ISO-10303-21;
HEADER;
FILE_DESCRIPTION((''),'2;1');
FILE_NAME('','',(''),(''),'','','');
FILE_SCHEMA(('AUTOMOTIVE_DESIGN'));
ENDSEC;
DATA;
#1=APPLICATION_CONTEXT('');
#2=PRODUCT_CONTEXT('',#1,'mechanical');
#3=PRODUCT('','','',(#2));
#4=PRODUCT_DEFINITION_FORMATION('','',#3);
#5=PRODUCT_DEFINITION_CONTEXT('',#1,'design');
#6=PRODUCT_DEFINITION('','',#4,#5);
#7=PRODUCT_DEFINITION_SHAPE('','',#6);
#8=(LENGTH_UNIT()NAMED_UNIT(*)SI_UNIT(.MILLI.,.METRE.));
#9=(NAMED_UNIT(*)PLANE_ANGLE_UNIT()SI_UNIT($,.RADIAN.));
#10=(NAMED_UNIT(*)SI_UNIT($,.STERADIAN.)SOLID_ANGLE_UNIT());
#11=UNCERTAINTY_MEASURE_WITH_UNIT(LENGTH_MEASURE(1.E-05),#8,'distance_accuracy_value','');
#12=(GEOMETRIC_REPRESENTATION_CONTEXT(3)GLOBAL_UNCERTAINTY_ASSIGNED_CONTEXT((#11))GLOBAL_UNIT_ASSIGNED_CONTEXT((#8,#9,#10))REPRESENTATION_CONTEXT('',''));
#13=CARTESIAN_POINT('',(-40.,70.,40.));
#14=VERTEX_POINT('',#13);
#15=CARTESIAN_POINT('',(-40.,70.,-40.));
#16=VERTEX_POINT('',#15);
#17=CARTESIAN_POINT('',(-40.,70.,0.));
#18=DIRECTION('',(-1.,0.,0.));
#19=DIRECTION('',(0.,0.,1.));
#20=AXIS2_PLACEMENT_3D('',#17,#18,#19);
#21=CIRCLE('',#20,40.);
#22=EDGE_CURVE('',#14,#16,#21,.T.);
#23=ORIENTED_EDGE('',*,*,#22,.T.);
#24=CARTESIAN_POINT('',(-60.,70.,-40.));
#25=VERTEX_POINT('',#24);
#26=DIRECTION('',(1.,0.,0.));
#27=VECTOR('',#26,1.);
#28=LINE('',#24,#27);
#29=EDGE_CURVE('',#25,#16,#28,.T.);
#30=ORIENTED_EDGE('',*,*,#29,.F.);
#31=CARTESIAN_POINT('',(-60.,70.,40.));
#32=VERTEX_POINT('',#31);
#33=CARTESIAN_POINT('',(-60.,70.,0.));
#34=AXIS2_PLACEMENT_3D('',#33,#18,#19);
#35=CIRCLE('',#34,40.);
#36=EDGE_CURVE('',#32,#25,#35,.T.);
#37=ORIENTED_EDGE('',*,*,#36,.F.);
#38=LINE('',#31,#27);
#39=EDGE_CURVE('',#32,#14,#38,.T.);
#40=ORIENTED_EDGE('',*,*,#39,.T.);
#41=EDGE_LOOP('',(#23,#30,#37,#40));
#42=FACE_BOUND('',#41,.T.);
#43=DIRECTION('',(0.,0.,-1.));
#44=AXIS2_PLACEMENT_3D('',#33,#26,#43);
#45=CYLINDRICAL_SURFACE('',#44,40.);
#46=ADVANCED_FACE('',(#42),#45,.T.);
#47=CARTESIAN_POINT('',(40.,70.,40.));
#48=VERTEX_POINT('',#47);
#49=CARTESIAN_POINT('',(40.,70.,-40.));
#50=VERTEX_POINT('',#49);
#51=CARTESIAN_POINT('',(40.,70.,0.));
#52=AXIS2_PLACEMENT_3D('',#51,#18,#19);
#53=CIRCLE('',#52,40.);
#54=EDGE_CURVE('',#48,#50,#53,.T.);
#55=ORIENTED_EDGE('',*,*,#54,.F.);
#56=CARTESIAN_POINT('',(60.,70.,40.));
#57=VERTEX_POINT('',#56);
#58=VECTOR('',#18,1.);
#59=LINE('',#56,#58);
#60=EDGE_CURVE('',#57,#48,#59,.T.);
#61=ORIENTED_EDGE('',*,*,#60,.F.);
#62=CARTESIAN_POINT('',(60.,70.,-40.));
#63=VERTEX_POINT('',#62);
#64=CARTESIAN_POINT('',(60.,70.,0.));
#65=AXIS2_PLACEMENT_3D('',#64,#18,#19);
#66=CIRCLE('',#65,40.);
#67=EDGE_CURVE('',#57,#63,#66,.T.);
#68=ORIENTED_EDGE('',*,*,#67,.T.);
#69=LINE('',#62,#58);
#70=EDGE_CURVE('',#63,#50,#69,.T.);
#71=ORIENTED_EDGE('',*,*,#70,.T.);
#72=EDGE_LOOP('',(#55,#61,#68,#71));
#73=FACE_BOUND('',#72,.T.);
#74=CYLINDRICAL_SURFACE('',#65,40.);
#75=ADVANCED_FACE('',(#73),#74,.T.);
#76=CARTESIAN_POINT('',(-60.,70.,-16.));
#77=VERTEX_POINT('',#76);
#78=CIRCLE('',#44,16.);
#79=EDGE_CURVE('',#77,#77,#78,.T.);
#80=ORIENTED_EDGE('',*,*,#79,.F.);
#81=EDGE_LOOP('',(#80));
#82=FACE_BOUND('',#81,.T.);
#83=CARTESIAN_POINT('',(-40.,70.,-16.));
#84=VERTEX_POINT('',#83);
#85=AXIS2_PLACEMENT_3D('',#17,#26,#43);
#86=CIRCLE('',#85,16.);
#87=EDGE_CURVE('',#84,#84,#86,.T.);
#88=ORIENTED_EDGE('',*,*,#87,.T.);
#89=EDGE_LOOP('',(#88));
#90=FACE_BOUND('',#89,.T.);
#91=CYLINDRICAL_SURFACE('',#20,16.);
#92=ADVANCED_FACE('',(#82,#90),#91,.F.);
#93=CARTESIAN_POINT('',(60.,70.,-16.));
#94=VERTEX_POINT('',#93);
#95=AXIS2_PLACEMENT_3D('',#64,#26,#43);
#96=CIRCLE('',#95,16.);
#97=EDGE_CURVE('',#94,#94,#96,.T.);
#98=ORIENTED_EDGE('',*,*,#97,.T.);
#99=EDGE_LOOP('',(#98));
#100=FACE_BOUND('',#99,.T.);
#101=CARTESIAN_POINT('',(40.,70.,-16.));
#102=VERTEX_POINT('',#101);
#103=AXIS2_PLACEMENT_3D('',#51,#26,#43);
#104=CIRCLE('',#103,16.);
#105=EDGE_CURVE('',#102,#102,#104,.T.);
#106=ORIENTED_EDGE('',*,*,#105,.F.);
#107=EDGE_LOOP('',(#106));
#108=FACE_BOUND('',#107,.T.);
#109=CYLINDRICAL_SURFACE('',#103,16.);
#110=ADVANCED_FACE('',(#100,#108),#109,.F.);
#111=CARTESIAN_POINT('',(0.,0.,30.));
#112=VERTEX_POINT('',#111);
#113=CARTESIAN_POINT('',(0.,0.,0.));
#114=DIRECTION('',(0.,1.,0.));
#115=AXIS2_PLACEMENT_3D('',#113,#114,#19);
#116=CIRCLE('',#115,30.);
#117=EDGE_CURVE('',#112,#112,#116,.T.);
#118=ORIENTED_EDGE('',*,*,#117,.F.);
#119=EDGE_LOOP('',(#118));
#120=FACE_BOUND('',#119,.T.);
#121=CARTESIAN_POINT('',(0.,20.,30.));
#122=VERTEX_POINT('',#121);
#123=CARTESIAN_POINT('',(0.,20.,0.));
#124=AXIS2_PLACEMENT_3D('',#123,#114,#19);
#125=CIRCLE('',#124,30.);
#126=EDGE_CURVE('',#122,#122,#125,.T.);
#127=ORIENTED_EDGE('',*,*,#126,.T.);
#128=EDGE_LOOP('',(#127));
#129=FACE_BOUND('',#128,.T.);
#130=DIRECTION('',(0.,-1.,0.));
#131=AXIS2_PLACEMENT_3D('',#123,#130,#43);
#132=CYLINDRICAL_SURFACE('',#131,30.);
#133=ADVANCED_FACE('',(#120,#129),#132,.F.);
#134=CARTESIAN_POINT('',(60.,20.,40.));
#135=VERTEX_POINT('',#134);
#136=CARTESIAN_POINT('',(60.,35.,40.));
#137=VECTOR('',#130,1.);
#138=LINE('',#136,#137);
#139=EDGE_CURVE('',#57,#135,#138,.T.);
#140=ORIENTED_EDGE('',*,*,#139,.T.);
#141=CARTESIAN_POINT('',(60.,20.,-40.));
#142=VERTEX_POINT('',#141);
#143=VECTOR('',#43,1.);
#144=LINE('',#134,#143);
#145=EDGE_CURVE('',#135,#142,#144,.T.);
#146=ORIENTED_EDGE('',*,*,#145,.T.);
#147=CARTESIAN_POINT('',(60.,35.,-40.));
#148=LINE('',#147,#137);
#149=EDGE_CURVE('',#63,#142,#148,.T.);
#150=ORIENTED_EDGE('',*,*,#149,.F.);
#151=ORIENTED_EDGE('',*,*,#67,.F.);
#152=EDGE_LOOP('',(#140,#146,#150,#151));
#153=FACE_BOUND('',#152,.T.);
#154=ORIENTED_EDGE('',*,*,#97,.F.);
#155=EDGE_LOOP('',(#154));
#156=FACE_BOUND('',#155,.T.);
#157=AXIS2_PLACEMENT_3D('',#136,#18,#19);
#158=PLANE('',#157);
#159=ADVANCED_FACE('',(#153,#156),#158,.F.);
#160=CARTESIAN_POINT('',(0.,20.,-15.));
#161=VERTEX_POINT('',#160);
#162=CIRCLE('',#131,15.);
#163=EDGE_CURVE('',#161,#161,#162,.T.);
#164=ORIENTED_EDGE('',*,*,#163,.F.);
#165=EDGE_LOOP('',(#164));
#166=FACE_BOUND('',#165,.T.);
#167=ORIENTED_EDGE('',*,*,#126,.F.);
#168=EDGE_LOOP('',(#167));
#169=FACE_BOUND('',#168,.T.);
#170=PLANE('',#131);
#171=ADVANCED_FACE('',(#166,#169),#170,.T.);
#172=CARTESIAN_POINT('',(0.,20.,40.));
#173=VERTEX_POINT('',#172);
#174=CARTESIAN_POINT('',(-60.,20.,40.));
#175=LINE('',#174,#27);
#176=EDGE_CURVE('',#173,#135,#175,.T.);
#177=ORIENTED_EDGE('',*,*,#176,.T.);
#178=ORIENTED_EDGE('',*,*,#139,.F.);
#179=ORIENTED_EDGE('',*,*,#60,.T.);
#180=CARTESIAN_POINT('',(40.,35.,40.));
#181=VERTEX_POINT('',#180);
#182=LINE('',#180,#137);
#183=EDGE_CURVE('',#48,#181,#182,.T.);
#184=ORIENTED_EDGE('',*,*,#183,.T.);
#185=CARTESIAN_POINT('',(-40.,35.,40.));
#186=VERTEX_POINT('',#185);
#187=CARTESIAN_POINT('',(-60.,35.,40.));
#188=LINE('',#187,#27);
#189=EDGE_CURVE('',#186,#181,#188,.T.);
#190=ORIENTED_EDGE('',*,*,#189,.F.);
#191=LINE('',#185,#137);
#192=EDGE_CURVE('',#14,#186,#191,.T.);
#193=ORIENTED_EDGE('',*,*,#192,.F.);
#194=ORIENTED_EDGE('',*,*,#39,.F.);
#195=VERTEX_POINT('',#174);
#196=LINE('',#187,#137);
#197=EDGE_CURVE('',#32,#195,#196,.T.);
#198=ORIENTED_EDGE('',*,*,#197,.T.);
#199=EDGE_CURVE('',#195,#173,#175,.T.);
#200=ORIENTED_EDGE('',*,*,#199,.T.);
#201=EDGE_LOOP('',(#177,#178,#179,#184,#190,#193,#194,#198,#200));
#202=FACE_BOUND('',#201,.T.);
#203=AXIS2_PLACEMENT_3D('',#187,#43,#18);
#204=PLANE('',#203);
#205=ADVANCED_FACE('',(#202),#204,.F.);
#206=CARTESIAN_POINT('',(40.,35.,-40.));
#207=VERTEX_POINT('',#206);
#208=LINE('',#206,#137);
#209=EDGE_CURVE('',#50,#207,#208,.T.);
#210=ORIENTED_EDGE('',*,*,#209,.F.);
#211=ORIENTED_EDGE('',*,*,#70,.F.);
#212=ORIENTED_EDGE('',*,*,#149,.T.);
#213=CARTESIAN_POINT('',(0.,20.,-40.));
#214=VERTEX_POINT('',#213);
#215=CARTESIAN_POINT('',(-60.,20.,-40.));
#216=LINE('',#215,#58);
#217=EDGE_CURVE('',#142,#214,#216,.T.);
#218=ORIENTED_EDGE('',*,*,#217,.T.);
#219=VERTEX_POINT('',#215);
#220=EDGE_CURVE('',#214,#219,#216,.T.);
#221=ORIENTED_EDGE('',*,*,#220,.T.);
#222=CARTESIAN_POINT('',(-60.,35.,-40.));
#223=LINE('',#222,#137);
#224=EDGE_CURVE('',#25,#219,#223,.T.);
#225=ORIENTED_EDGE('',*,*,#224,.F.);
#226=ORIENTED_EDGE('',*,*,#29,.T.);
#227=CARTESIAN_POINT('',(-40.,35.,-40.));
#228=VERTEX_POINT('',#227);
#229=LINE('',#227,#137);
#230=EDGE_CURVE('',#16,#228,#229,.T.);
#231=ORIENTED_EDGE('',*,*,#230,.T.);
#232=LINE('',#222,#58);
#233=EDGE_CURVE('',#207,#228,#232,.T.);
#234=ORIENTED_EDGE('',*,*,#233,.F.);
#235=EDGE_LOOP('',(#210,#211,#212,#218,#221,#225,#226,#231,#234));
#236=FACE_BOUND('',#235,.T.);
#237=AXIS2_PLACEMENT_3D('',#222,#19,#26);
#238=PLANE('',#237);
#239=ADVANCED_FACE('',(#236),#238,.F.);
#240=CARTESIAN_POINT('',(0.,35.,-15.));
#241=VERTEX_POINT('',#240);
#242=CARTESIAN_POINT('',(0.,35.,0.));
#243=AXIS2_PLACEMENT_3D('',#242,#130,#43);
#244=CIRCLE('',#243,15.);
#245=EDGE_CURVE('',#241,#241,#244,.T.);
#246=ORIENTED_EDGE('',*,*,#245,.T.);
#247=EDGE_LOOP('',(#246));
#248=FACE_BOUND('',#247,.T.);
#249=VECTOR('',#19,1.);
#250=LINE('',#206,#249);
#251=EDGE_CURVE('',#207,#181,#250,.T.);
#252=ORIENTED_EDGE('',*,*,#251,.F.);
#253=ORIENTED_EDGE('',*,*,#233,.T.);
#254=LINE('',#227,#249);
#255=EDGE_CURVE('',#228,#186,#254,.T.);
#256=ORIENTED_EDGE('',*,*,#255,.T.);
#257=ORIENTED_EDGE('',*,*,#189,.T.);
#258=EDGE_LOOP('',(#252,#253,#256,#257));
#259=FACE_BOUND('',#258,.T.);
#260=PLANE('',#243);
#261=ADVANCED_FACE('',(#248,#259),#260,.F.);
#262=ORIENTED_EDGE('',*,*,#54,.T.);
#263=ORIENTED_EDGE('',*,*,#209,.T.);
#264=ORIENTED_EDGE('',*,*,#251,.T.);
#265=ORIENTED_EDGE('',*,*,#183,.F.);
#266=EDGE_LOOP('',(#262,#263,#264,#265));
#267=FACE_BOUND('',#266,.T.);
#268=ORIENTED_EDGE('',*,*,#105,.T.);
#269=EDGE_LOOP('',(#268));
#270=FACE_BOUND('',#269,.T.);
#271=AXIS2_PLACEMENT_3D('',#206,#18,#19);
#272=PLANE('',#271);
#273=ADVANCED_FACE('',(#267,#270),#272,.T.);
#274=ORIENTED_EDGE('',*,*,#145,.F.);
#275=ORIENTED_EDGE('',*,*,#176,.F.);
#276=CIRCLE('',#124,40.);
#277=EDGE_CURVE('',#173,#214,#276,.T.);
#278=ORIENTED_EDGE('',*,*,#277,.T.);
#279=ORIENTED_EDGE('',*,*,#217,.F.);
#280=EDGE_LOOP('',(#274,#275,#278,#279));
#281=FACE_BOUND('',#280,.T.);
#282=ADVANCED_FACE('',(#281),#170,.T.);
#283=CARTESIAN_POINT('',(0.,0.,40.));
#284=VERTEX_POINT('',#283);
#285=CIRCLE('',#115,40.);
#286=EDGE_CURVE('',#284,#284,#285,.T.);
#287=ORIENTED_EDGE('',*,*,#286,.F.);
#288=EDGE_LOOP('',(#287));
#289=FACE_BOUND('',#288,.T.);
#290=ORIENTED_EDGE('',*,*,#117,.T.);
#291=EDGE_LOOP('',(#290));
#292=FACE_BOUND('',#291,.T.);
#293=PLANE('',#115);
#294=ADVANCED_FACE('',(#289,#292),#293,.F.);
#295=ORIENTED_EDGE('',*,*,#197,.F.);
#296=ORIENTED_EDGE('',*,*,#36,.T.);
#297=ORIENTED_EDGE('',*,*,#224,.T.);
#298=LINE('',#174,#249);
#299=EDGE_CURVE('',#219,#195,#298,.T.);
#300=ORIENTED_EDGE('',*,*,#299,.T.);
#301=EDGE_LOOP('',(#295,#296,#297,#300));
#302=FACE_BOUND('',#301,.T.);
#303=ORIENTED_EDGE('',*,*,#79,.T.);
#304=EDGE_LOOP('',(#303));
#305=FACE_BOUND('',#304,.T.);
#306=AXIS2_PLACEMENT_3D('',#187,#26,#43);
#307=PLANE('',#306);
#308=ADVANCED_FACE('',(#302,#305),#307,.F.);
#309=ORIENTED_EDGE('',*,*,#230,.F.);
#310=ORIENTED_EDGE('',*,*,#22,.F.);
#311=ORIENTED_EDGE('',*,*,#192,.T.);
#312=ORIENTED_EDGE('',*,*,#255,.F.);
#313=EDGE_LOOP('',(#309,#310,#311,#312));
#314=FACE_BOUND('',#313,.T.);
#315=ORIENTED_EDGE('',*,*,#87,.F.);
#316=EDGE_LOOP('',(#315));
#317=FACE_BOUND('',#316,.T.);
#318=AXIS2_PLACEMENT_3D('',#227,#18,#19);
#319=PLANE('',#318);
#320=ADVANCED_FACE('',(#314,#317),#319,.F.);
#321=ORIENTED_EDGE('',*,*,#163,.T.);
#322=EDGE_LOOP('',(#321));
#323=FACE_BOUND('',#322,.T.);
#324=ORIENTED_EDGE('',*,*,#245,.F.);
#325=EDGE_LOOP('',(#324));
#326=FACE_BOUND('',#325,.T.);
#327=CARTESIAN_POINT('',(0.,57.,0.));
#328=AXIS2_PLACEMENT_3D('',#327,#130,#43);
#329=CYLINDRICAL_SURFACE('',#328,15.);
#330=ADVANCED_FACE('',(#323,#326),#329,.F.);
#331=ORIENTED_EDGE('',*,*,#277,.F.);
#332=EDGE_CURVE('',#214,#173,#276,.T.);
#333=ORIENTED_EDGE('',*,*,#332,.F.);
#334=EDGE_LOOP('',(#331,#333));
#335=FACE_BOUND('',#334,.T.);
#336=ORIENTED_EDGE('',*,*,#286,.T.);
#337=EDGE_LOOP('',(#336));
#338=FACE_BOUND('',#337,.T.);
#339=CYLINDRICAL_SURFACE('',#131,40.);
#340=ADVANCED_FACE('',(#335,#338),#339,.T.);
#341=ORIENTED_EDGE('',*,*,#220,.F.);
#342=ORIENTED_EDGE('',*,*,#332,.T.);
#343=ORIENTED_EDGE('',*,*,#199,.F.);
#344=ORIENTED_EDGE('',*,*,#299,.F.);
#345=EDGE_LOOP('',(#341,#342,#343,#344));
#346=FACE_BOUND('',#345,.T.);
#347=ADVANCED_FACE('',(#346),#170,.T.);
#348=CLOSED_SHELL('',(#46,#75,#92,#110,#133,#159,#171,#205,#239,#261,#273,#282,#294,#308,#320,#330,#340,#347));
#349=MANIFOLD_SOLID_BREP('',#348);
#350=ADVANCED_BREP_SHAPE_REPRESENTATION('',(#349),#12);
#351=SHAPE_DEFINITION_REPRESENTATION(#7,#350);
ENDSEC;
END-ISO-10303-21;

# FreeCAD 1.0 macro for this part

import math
import FreeCAD as App
import Part
import Sketcher

doc = App.newDocument("Part")
body = doc.addObject("PartDesign::Body", "Body")

# Sketch on XZ plane
sketch1 = body.newObject("Sketcher::SketchObject", "Sketch")
sketch1.AttachmentSupport = (doc.getObject("XZ_Plane"), [""])
sketch1.MapMode = "FlatFace"
sketch1.addGeometry([
    Part.Circle(App.Vector(0, 0, 0), App.Vector(0, 0, 1), 40),
    Part.Circle(App.Vector(0, 0, 0), App.Vector(0, 0, 1), 30),
], False)
sketch1.addConstraint([
    Sketcher.Constraint("Coincident", 0, 3, -1, 1),
    Sketcher.Constraint("Coincident", 1, 3, -1, 1),
    Sketcher.Constraint("Diameter", 0, 80.0),
    Sketcher.Constraint("Diameter", 1, 60.0),
])
pad1 = body.newObject("PartDesign::Pad", "Pad")
pad1.Profile = sketch1
pad1.Length = 20
pad1.Reversed = True

# Sketch on XZ plane
sketch2 = body.newObject("Sketcher::SketchObject", "Sketch001")
sketch2.AttachmentSupport = (doc.getObject("XZ_Plane"), [""])
sketch2.MapMode = "FlatFace"
sketch2.AttachmentOffset = App.Placement(App.Vector(0, 0, -20), App.Rotation())
sketch2.addGeometry([
    Part.LineSegment(App.Vector(-60, -40, 0), App.Vector(-60, 40, 0)),
    Part.LineSegment(App.Vector(-60, 40, 0), App.Vector(60, 40, 0)),
    Part.LineSegment(App.Vector(60, 40, 0), App.Vector(60, -40, 0)),
    Part.LineSegment(App.Vector(60, -40, 0), App.Vector(-60, -40, 0)),
], False)
sketch2.addConstraint([
    Sketcher.Constraint("Coincident", 0, 2, 1, 1),
    Sketcher.Constraint("Coincident", 1, 2, 2, 1),
    Sketcher.Constraint("Coincident", 2, 2, 3, 1),
    Sketcher.Constraint("Coincident", 3, 2, 0, 1),
    Sketcher.Constraint("Vertical", 0),
    Sketcher.Constraint("Horizontal", 1),
    Sketcher.Constraint("Vertical", 2),
    Sketcher.Constraint("Horizontal", 3),
    Sketcher.Constraint("Symmetric", 0, 2, 2, 2, -1, 1),
    Sketcher.Constraint("DistanceX", 1, 1, 1, 2, 120.0),
    Sketcher.Constraint("DistanceY", 0, 1, 0, 2, 80.0),
])
pad2 = body.newObject("PartDesign::Pad", "Pad001")
pad2.Profile = sketch2
pad2.Length = 15
pad2.Reversed = True

# Sketch on XZ plane
sketch3 = body.newObject("Sketcher::SketchObject", "Sketch002")
sketch3.AttachmentSupport = (doc.getObject("XZ_Plane"), [""])
sketch3.MapMode = "FlatFace"
sketch3.AttachmentOffset = App.Placement(App.Vector(0, 0, -20), App.Rotation())
sketch3.addGeometry(Part.Circle(App.Vector(0, 0, 0), App.Vector(0, 0, 1), 15), False)
sketch3.addConstraint([
    Sketcher.Constraint("Coincident", 0, 3, -1, 1),
    Sketcher.Constraint("Diameter", 0, 30.0),
])
pocket1 = body.newObject("PartDesign::Pocket", "Pocket")
pocket1.Profile = sketch3
pocket1.Length = 37

# Sketch on XY plane
sketch4 = body.newObject("Sketcher::SketchObject", "Sketch003")
sketch4.AttachmentSupport = (doc.getObject("XY_Plane"), [""])
sketch4.MapMode = "FlatFace"
sketch4.AttachmentOffset = App.Placement(App.Vector(0, 0, 40), App.Rotation())
sketch4.addGeometry([
    Part.LineSegment(App.Vector(40, 70, 0), App.Vector(40, 35, 0)),
    Part.LineSegment(App.Vector(40, 35, 0), App.Vector(60, 35, 0)),
    Part.LineSegment(App.Vector(60, 35, 0), App.Vector(60, 70, 0)),
    Part.LineSegment(App.Vector(60, 70, 0), App.Vector(40, 70, 0)),
], False)
sketch4.addConstraint([
    Sketcher.Constraint("Coincident", 0, 2, 1, 1),
    Sketcher.Constraint("Coincident", 1, 2, 2, 1),
    Sketcher.Constraint("Coincident", 2, 2, 3, 1),
    Sketcher.Constraint("Coincident", 3, 2, 0, 1),
    Sketcher.Constraint("Vertical", 0),
    Sketcher.Constraint("Horizontal", 1),
    Sketcher.Constraint("Vertical", 2),
    Sketcher.Constraint("Horizontal", 3),
    Sketcher.Constraint("DistanceX", 1, 1, 1, 2, 20.0),
    Sketcher.Constraint("DistanceY", 0, 2, 0, 1, 35.0),
    Sketcher.Constraint("DistanceX", -1, 1, 0, 2, 40.0),
    Sketcher.Constraint("DistanceY", -1, 1, 0, 2, 35.0),
])
pad3 = body.newObject("PartDesign::Pad", "Pad002")
pad3.Profile = sketch4
pad3.Length = 80
pad3.Reversed = True

# Sketch on YZ plane
sketch5 = body.newObject("Sketcher::SketchObject", "Sketch004")
sketch5.AttachmentSupport = (doc.getObject("YZ_Plane"), [""])
sketch5.MapMode = "FlatFace"
sketch5.AttachmentOffset = App.Placement(App.Vector(0, 0, 40), App.Rotation())
sketch5.addGeometry([
    Part.LineSegment(App.Vector(70, -40, 0), App.Vector(70, 40, 0)),
    Part.ArcOfCircle(Part.Circle(App.Vector(70, 0, 0), App.Vector(0, 0, 1), 40), math.radians(-90), math.radians(90)),
], False)
sketch5.addConstraint([
    Sketcher.Constraint("Coincident", 0, 1, 1, 1),
    Sketcher.Constraint("Coincident", 1, 2, 0, 2),
    Sketcher.Constraint("Vertical", 0),
    Sketcher.Constraint("PointOnObject", 1, 3, -1),
    Sketcher.Constraint("Vertical", 1, 3, 0, 1),
    Sketcher.Constraint("Radius", 1, 40.0),
    Sketcher.Constraint("DistanceX", -1, 1, 1, 3, 70.0),
])
pad4 = body.newObject("PartDesign::Pad", "Pad003")
pad4.Profile = sketch5
pad4.Length = 20

# Sketch on YZ plane
sketch6 = body.newObject("Sketcher::SketchObject", "Sketch005")
sketch6.AttachmentSupport = (doc.getObject("YZ_Plane"), [""])
sketch6.MapMode = "FlatFace"
sketch6.AttachmentOffset = App.Placement(App.Vector(0, 0, 60), App.Rotation())
sketch6.addGeometry(Part.Circle(App.Vector(70, 0, 0), App.Vector(0, 0, 1), 16), False)
sketch6.addConstraint([
    Sketcher.Constraint("PointOnObject", 0, 3, -1),
    Sketcher.Constraint("Diameter", 0, 32.0),
    Sketcher.Constraint("DistanceX", -1, 1, 0, 3, 70.0),
])
pocket2 = body.newObject("PartDesign::Pocket", "Pocket001")
pocket2.Profile = sketch6
pocket2.Length = 20
doc.recompute()

mirrored = body.newObject("PartDesign::Mirrored", "Mirrored")
mirrored.Originals = [pad3, pad4, pocket2]
mirrored.MirrorPlane = (doc.getObject("YZ_Plane"), [""])
body.Tip = mirrored

doc.recompute()
